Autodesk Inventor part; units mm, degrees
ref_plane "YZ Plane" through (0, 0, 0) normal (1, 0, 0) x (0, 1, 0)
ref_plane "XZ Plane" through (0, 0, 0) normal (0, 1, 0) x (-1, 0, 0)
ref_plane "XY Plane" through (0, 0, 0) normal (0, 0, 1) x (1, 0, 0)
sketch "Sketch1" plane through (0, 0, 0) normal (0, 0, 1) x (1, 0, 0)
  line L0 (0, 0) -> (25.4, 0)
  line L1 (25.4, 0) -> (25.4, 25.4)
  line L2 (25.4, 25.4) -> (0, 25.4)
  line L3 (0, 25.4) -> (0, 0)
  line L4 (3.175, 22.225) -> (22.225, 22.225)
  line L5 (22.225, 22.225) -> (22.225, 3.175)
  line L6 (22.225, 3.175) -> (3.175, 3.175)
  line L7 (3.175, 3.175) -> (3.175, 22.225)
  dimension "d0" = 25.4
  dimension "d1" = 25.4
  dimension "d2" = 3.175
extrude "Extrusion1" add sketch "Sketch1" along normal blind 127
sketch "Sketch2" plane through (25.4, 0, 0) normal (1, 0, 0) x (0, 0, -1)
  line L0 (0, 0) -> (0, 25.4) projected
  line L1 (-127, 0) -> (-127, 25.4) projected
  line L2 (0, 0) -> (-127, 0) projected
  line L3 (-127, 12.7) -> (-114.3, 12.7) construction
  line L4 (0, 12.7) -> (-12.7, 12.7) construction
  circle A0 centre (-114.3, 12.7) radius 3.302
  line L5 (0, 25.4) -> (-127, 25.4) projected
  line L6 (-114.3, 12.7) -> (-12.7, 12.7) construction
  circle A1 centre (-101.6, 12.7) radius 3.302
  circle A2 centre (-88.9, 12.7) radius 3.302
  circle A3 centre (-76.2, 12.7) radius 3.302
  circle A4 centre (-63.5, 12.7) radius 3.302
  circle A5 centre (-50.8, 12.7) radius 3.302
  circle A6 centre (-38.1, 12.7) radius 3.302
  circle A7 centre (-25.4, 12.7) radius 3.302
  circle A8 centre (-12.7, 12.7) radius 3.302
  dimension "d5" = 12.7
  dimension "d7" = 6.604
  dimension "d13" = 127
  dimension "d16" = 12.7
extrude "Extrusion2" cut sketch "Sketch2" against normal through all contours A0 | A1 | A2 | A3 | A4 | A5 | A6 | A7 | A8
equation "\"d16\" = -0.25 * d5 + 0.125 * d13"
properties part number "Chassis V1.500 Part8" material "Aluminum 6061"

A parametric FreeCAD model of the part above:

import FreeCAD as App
import Part
import Sketcher
from FreeCAD import Vector
Q = App.Units.Quantity


def add_polygon(sketch, points):
    """Adds a closed chain of lines whose ends are joined by coincident constraints."""
    first, n = sketch.GeometryCount, len(points)
    for a, b in zip(points, points[1:] + points[:1]):
        sketch.addGeometry(Part.LineSegment(App.Vector(*a, 0), App.Vector(*b, 0)), False)
    for i in range(n):
        sketch.addConstraint(Sketcher.Constraint("Coincident", first + i, 2, first + (i + 1) % n, 1))

doc = App.newDocument("Part")
body = doc.addObject("PartDesign::Body", "Body")

# Sketch on XY plane
sketch1 = body.newObject("Sketcher::SketchObject", "Sketch")
sketch1.AttachmentSupport = (doc.getObject("XY_Plane"), [""])
sketch1.MapMode = "FlatFace"
add_polygon(sketch1, [(0, 25), (0, 0), (25, 0), (25, 25)])  # lines 0-3
add_polygon(sketch1, [(3, 3), (3, 22), (22, 22), (22, 3)])  # lines 4-7
sketch1.addConstraint([
    Sketcher.Constraint("Vertical", 0),
    Sketcher.Constraint("Horizontal", 1),
    Sketcher.Constraint("Vertical", 2),
    Sketcher.Constraint("Horizontal", 3),
    Sketcher.Constraint("Vertical", 4),
    Sketcher.Constraint("Horizontal", 5),
    Sketcher.Constraint("Vertical", 6),
    Sketcher.Constraint("Horizontal", 7),
    Sketcher.Constraint("Coincident", 0, 2, -1, 1),
    Sketcher.Constraint("Equal", 3, 0),
    Sketcher.Constraint("Equal", 7, 4),
    Sketcher.Constraint("DistanceX", 1, 1, 1, 2, Q("1 in")),
    Sketcher.Constraint("DistanceX", -1, 1, 4, 2, Q("0.125 in")),
    Sketcher.Constraint("DistanceY", -1, 1, 6, 2, Q("0.125 in")),
    Sketcher.Constraint("DistanceY", 4, 2, 3, 2, Q("0.125 in")),
])
pad1 = body.newObject("PartDesign::Pad", "Pad")
pad1.Profile = sketch1
pad1.Length = Q("5 in")

# Sketch on YZ plane
sketch2 = body.newObject("Sketcher::SketchObject", "Sketch001")
sketch2.AttachmentSupport = (doc.getObject("YZ_Plane"), [""])
sketch2.MapMode = "FlatFace"
sketch2.AttachmentOffset = App.Placement(Vector(0, 0, 1 * 25.4), App.Rotation())
sketch2.addGeometry([
    Part.Circle(Vector(12.7, 114.3, 0), Vector(0, 0, 1), 3.3),  # 0
    Part.Circle(Vector(12.7, 101.6, 0), Vector(0, 0, 1), 3.3),  # 1
    Part.Circle(Vector(12.7, 88.9, 0), Vector(0, 0, 1), 3.3),  # 2
    Part.Circle(Vector(12.7, 76.2, 0), Vector(0, 0, 1), 3.3),  # 3
    Part.Circle(Vector(12.7, 63.5, 0), Vector(0, 0, 1), 3.3),  # 4
    Part.Circle(Vector(12.7, 50.8, 0), Vector(0, 0, 1), 3.3),  # 5
    Part.Circle(Vector(12.7, 38.1, 0), Vector(0, 0, 1), 3.3),  # 6
    Part.Circle(Vector(12.7, 25.4, 0), Vector(0, 0, 1), 3.3),  # 7
    Part.Circle(Vector(12.7, 12.7, 0), Vector(0, 0, 1), 3.3),  # 8
], False)
sketch2.addConstraint([
    Sketcher.Constraint("Equal", 0, 1),
    Sketcher.Constraint("Equal", 1, 2),
    Sketcher.Constraint("Equal", 2, 3),
    Sketcher.Constraint("Equal", 3, 4),
    Sketcher.Constraint("Equal", 4, 5),
    Sketcher.Constraint("Equal", 5, 6),
    Sketcher.Constraint("Equal", 6, 7),
    Sketcher.Constraint("Equal", 7, 8),
    Sketcher.Constraint("Vertical", 0, 3, 1, 3),
    Sketcher.Constraint("Vertical", 1, 3, 2, 3),
    Sketcher.Constraint("Vertical", 2, 3, 3, 3),
    Sketcher.Constraint("Vertical", 3, 3, 4, 3),
    Sketcher.Constraint("Vertical", 4, 3, 5, 3),
    Sketcher.Constraint("Vertical", 5, 3, 6, 3),
    Sketcher.Constraint("Vertical", 6, 3, 7, 3),
    Sketcher.Constraint("Vertical", 7, 3, 8, 3),
    Sketcher.Constraint("Diameter", 0, Q("0.26 in")),
    Sketcher.Constraint("DistanceY", -1, 1, 7, 3, Q("1 in")),
    Sketcher.Constraint("DistanceY", 2, 3, 0, 3, Q("1 in")),
    Sketcher.Constraint("DistanceY", 3, 3, 1, 3, Q("1 in")),
    Sketcher.Constraint("DistanceY", 4, 3, 2, 3, Q("1 in")),
    Sketcher.Constraint("DistanceY", 5, 3, 3, 3, Q("1 in")),
    Sketcher.Constraint("DistanceY", 6, 3, 4, 3, Q("1 in")),
    Sketcher.Constraint("DistanceY", 7, 3, 5, 3, Q("1 in")),
    Sketcher.Constraint("DistanceY", 8, 3, 6, 3, Q("1 in")),
    Sketcher.Constraint("DistanceX", -1, 1, 0, 3, Q("0.5 in")),
    Sketcher.Constraint("DistanceY", -1, 1, 8, 3, Q("0.5 in")),
])
pocket1 = body.newObject("PartDesign::Pocket", "Pocket")
pocket1.Profile = sketch2
pocket1.Type = "ThroughAll"

doc.recompute()
